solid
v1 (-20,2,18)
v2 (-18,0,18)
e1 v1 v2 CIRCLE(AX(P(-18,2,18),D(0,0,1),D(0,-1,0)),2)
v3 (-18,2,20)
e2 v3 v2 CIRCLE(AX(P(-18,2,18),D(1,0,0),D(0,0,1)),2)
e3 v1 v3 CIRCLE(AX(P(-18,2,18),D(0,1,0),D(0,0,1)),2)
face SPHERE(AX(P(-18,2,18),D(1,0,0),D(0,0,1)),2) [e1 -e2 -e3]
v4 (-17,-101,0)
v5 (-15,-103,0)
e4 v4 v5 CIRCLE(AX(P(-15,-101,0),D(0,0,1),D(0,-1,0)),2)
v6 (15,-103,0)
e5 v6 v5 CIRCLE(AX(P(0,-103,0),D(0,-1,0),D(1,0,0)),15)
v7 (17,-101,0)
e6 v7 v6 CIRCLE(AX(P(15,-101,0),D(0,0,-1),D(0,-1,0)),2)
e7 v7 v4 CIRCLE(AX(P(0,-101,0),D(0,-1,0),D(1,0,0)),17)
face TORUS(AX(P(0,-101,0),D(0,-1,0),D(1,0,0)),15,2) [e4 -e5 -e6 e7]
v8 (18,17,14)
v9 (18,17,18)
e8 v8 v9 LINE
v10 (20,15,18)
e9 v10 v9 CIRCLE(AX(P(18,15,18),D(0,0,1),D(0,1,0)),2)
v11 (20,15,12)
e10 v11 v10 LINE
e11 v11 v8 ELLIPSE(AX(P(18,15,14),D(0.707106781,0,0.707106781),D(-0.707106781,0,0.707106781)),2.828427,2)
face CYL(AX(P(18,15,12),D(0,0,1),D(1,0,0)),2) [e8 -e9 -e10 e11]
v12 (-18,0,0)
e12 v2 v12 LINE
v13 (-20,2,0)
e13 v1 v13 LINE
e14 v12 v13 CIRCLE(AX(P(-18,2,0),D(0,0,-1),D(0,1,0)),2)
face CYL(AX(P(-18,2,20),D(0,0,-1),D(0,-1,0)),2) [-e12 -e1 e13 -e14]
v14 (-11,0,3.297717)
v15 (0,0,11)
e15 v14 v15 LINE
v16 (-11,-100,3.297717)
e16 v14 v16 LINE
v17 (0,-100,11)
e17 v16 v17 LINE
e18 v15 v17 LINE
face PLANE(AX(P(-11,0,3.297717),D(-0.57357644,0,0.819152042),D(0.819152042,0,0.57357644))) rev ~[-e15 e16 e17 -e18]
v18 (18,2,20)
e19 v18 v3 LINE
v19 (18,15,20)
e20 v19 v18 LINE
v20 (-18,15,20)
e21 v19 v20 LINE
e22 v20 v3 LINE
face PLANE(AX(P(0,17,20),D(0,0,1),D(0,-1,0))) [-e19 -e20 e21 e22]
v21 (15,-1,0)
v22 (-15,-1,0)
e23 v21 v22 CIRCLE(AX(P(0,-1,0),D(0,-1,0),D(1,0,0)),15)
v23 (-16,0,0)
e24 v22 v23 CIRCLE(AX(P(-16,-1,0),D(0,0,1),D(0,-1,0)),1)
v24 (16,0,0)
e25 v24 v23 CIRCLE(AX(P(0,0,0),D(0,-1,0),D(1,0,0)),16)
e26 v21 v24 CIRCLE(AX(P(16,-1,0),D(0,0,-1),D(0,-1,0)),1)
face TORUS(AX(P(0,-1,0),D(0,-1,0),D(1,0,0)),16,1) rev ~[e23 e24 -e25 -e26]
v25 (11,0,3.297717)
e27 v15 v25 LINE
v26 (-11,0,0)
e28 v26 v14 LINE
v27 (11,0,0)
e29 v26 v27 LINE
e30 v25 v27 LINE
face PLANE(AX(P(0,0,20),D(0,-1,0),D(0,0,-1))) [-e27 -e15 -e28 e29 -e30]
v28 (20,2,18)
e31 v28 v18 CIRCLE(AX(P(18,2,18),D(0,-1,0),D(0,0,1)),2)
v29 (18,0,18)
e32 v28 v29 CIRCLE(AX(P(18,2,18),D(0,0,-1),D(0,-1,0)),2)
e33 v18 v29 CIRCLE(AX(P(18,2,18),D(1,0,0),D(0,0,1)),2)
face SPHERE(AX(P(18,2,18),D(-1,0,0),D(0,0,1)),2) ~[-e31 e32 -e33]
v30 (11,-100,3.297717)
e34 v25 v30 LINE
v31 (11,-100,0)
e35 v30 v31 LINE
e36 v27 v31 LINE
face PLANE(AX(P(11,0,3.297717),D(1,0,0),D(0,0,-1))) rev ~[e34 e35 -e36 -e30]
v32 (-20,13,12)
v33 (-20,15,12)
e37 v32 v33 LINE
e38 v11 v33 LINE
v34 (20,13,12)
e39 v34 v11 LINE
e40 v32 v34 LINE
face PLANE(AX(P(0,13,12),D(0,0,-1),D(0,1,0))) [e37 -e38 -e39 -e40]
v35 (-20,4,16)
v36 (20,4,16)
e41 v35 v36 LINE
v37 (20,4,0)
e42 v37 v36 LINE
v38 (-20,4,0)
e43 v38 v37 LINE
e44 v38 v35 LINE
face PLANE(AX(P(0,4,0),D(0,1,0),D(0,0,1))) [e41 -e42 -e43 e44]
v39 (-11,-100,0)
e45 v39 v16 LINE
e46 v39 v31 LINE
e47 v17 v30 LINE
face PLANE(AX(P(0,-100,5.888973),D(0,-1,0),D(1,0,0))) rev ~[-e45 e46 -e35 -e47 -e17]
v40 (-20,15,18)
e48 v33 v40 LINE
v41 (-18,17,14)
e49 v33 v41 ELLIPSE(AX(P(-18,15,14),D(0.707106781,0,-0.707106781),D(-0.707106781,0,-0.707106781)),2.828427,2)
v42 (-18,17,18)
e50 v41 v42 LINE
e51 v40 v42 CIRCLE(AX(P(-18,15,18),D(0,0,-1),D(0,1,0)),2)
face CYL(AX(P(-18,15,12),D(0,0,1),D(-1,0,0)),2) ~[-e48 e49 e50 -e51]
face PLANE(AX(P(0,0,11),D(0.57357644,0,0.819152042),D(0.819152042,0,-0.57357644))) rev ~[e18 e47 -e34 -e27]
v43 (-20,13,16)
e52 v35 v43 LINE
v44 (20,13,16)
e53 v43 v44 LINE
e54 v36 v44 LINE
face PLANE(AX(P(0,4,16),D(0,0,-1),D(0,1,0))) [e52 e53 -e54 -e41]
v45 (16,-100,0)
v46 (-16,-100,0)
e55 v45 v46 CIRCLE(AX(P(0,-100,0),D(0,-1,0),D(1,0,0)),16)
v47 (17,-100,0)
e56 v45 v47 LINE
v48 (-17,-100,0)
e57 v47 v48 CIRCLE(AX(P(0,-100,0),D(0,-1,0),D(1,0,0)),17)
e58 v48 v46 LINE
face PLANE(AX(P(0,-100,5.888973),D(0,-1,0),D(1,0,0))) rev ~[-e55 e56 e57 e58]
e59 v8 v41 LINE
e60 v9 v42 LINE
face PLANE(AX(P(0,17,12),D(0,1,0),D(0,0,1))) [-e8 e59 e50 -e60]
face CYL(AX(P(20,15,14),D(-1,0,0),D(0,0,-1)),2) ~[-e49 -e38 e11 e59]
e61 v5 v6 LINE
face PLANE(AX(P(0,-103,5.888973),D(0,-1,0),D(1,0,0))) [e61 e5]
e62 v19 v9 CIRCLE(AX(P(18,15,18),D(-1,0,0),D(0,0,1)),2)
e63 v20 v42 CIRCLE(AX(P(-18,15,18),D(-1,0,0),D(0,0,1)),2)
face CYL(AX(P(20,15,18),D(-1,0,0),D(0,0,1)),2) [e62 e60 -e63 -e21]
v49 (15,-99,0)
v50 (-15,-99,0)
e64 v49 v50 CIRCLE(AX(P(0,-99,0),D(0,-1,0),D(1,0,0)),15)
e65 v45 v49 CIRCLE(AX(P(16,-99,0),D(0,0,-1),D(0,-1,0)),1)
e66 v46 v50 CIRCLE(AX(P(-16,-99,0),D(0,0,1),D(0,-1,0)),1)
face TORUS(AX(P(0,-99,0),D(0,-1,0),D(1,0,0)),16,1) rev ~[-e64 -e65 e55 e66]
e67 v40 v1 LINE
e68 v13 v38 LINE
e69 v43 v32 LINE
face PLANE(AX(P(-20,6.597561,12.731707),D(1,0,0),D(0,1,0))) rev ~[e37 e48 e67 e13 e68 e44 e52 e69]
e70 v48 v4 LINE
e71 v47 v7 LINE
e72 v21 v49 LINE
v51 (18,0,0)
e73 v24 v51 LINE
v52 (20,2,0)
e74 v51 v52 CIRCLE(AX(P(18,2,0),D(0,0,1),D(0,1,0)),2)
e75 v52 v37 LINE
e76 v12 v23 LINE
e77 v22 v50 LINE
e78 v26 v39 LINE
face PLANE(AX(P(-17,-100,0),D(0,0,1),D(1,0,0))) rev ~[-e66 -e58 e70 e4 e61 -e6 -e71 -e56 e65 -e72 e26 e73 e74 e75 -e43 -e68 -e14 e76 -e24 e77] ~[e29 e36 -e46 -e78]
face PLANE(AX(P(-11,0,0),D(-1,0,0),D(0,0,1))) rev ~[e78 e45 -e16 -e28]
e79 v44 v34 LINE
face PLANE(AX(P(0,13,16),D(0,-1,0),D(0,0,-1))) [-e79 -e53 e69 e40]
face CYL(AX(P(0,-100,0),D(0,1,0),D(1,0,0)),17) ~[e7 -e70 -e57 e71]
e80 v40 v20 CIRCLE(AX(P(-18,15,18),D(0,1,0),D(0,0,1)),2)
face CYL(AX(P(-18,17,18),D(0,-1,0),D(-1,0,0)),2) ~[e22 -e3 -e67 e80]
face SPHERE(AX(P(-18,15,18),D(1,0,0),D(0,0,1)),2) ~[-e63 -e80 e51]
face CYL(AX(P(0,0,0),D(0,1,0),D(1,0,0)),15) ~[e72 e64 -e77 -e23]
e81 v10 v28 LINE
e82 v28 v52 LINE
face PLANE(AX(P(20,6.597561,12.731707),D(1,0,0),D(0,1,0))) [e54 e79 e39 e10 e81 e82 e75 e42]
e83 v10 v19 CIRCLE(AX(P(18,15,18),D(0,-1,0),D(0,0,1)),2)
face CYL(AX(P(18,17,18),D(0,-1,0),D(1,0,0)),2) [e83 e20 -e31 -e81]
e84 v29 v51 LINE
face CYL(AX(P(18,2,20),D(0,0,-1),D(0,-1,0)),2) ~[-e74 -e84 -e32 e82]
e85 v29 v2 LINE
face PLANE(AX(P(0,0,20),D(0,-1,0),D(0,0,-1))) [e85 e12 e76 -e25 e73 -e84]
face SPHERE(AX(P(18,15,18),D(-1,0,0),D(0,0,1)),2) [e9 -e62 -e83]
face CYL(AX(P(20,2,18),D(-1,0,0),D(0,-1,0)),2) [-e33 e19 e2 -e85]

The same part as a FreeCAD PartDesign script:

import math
import FreeCAD as App
import Part
import Sketcher
from FreeCAD import Vector
Q = App.Units.Quantity


def edges_at(feature, points):
    """Names of the edges that pass closest to the given points."""
    edges = feature.Shape.Edges
    near = lambda p: min(range(len(edges)), key=lambda i: edges[i].distToShape(Part.Vertex(*p))[0])
    return sorted({f"Edge{near(p) + 1}" for p in points})

doc = App.newDocument("Part")
params = doc.addObject("Spreadsheet::Sheet", "Params")
for row, (alias, value) in enumerate([
    ("sketch1_radius", "15 mm"),
    ("sketch1_width", "4 mm"),
    ("pad1_length", "100 mm"),
    ("sketch2_width", "4 mm"),
    ("sketch2_width2", "9 mm"),
    ("sketch2_height", "20 mm"),
    ("sketch2_height2", "16 mm"),
    ("pad2_length", "40 mm"),
    ("sketch3_radius", "17 mm"),
    ("pad3_length", "3 mm"),
    ("fillet_radius", "2 mm"),
    ("fillet2_radius", "1 mm"),
], start=1):
    params.set(f"A{row}", alias)
    params.set(f"B{row}", "=" + value)
    params.setAlias(f"B{row}", alias)

body = doc.addObject("PartDesign::Body", "Body")

sketch1 = body.newObject("Sketcher::SketchObject", "Sketch")
sketch1.AttachmentSupport = (doc.getObject("XZ_Plane"), [""])
sketch1.MapMode = "FlatFace"
sketch1.addGeometry([
    Part.ArcOfCircle(Part.Circle(Vector(0, 0, 0), Vector(0, 0, 1), 15), math.radians(0), math.radians(180)),
    Part.LineSegment(Vector(-15, 0, 0), Vector(-11, 0, 0)),
    Part.LineSegment(Vector(-11, 0, 0), Vector(-11, 3.3, 0)),
    Part.LineSegment(Vector(-11, 3.3, 0), Vector(0, 11, 0)),
    Part.LineSegment(Vector(0, 11, 0), Vector(11, 3.3, 0)),
    Part.LineSegment(Vector(11, 3.3, 0), Vector(11, 0, 0)),
    Part.LineSegment(Vector(11, 0, 0), Vector(15, 0, 0)),
], False)
sketch1.addConstraint([
    Sketcher.Constraint("Coincident", 0, 2, 1, 1),
    Sketcher.Constraint("Coincident", 1, 2, 2, 1),
    Sketcher.Constraint("Coincident", 2, 2, 3, 1),
    Sketcher.Constraint("Coincident", 3, 2, 4, 1),
    Sketcher.Constraint("Coincident", 4, 2, 5, 1),
    Sketcher.Constraint("Coincident", 5, 2, 6, 1),
    Sketcher.Constraint("Coincident", 6, 2, 0, 1),
    Sketcher.Constraint("Horizontal", 1),
    Sketcher.Constraint("Vertical", 2),
    Sketcher.Constraint("Vertical", 5),
    Sketcher.Constraint("Horizontal", 6),
    Sketcher.Constraint("Coincident", 0, 3, -1, 1),
    Sketcher.Constraint("Symmetric", 1, 2, 5, 2, -1, 1),
    Sketcher.Constraint("PointOnObject", 0, 2, -1),
    Sketcher.Constraint("PointOnObject", 3, 2, -2),
    Sketcher.Constraint("Horizontal", 2, 2, 4, 2),
    Sketcher.Constraint("Radius", 0, Q("15 mm")),
    Sketcher.Constraint("DistanceX", 1, 1, 1, 2, Q("4 mm")),
    Sketcher.Constraint("Angle", 3, Q("35 deg")),
    Sketcher.Constraint("DistanceY", -1, 1, 3, 2, Q("11 mm")),
])
sketch1.setExpression("Constraints[16]", "Params.sketch1_radius")
sketch1.setExpression("Constraints[17]", "Params.sketch1_width")
pad1 = body.newObject("PartDesign::Pad", "Pad")
pad1.Profile = sketch1
pad1.setExpression("Length", "Params.pad1_length")

sketch2 = body.newObject("Sketcher::SketchObject", "Sketch001")
sketch2.AttachmentSupport = (doc.getObject("YZ_Plane"), [""])
sketch2.MapMode = "FlatFace"
sketch2.addGeometry([
    Part.LineSegment(Vector(0, 20, 0), Vector(0, 0, 0)),
    Part.LineSegment(Vector(0, 0, 0), Vector(4, 0, 0)),
    Part.LineSegment(Vector(4, 0, 0), Vector(4, 16, 0)),
    Part.LineSegment(Vector(4, 16, 0), Vector(13, 16, 0)),
    Part.LineSegment(Vector(13, 16, 0), Vector(13, 12, 0)),
    Part.LineSegment(Vector(13, 12, 0), Vector(17, 12, 0)),
    Part.LineSegment(Vector(17, 12, 0), Vector(17, 20, 0)),
    Part.LineSegment(Vector(17, 20, 0), Vector(0, 20, 0)),
], False)
sketch2.addConstraint([
    Sketcher.Constraint("Coincident", 0, 2, 1, 1),
    Sketcher.Constraint("Coincident", 1, 2, 2, 1),
    Sketcher.Constraint("Coincident", 2, 2, 3, 1),
    Sketcher.Constraint("Coincident", 3, 2, 4, 1),
    Sketcher.Constraint("Coincident", 4, 2, 5, 1),
    Sketcher.Constraint("Coincident", 5, 2, 6, 1),
    Sketcher.Constraint("Coincident", 6, 2, 7, 1),
    Sketcher.Constraint("Coincident", 7, 2, 0, 1),
    Sketcher.Constraint("Vertical", 0),
    Sketcher.Constraint("Horizontal", 1),
    Sketcher.Constraint("Vertical", 2),
    Sketcher.Constraint("Horizontal", 3),
    Sketcher.Constraint("Vertical", 4),
    Sketcher.Constraint("Horizontal", 5),
    Sketcher.Constraint("Vertical", 6),
    Sketcher.Constraint("Horizontal", 7),
    Sketcher.Constraint("Coincident", 0, 2, -1, 1),
    Sketcher.Constraint("Equal", 1, 5),
    Sketcher.Constraint("Equal", 5, 4),
    Sketcher.Constraint("DistanceX", 1, 1, 1, 2, Q("4 mm")),
    Sketcher.Constraint("DistanceX", 3, 1, 3, 2, Q("9 mm")),
    Sketcher.Constraint("DistanceY", 0, 2, 0, 1, Q("20 mm")),
    Sketcher.Constraint("DistanceY", 2, 1, 2, 2, Q("16 mm")),
])
sketch2.setExpression("Constraints[19]", "Params.sketch2_width")
sketch2.setExpression("Constraints[20]", "Params.sketch2_width2")
sketch2.setExpression("Constraints[21]", "Params.sketch2_height")
sketch2.setExpression("Constraints[22]", "Params.sketch2_height2")
pad2 = body.newObject("PartDesign::Pad", "Pad001")
pad2.Profile = sketch2
pad2.setExpression("Length", "Params.pad2_length")
pad2.Midplane = True

sketch3 = body.newObject("Sketcher::SketchObject", "Sketch002")
sketch3.AttachmentSupport = (doc.getObject("XZ_Plane"), [""])
sketch3.MapMode = "FlatFace"
sketch3.AttachmentOffset = App.Placement(Vector(0, 0, 100), App.Rotation())
sketch3.addGeometry([
    Part.ArcOfCircle(Part.Circle(Vector(0, 0, 0), Vector(0, 0, 1), 17), math.radians(0), math.radians(180)),
    Part.LineSegment(Vector(-17, 0, 0), Vector(17, 0, 0)),
], False)
sketch3.addConstraint([
    Sketcher.Constraint("Coincident", 0, 1, 1, 2),
    Sketcher.Constraint("Coincident", 1, 1, 0, 2),
    Sketcher.Constraint("Horizontal", 1),
    Sketcher.Constraint("Coincident", 0, 3, -1, 1),
    Sketcher.Constraint("PointOnObject", 0, 1, -1),
    Sketcher.Constraint("Radius", 0, Q("17 mm")),
])
sketch3.setExpression("Constraints[5]", "Params.sketch3_radius")
pad3 = body.newObject("PartDesign::Pad", "Pad002")
pad3.Profile = sketch3
pad3.setExpression("Length", "Params.pad3_length")
doc.recompute()

fillet = body.newObject("PartDesign::Fillet", "Fillet")
fillet.Base = (pad3, edges_at(pad3, [
    (0, 17, 20),
    (0, 0, 20),
    (20, 8.5, 20),
    (-20, 8.5, 20),
    (0, 17, 12),
    (20, 0, 10),
    (-20, 0, 10),
    (-20, 17, 16),
    (20, 17, 16),
    (0, -103, 17),
]))
fillet.setExpression("Radius", "Params.fillet_radius")
doc.recompute()

fillet2 = body.newObject("PartDesign::Fillet", "Fillet001")
fillet2.Base = (fillet, edges_at(fillet, [(0, 0, 15), (0, -100, 15)]))
fillet2.setExpression("Radius", "Params.fillet2_radius")

doc.recompute()
